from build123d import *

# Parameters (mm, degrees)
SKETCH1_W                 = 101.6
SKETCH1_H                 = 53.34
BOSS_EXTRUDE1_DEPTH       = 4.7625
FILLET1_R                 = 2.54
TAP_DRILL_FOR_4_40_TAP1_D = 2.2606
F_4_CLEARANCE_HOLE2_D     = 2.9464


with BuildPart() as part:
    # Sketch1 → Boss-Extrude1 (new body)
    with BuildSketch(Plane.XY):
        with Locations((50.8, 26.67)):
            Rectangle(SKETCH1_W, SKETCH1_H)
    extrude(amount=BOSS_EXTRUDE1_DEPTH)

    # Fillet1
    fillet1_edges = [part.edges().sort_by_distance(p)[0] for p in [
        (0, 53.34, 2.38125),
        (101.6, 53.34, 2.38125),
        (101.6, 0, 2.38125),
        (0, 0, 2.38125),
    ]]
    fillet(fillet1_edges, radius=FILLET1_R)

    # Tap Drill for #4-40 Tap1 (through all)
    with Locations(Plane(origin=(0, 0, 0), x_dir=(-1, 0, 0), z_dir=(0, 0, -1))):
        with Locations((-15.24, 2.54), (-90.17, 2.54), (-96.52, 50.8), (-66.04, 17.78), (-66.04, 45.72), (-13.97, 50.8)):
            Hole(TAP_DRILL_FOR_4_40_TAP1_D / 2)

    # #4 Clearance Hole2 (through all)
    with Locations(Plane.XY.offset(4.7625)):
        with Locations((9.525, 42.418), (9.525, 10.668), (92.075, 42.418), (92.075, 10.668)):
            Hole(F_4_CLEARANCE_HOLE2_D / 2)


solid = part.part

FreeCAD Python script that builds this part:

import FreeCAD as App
import Part
import Sketcher
from FreeCAD import Vector
Q = App.Units.Quantity


def edges_at(feature, points):
    """Names of the edges that pass closest to the given points."""
    edges = feature.Shape.Edges
    near = lambda p: min(range(len(edges)), key=lambda i: edges[i].distToShape(Part.Vertex(*p))[0])
    return sorted({f"Edge{near(p) + 1}" for p in points})

doc = App.newDocument("Part")
params = doc.addObject("Spreadsheet::Sheet", "Params")
for row, (alias, value) in enumerate([
    ("sketch1_width", "4 in"),
    ("sketch1_height", "2.1 in"),
    ("pad1_length", "0.1875 in"),
    ("fillet_radius", "0.1 in"),
    ("sketch2_diameter", "0.089 in"),
    ("hole_diameter", "0.089 in"),
    ("sketch3_diameter", "0.116 in"),
    ("hole2_diameter", "0.116 in"),
], start=1):
    params.set(f"A{row}", alias)
    params.set(f"B{row}", "=" + value)
    params.setAlias(f"B{row}", alias)

body = doc.addObject("PartDesign::Body", "Body")

# Sketch on XY plane
sketch1 = body.newObject("Sketcher::SketchObject", "Sketch")
sketch1.AttachmentSupport = (doc.getObject("XY_Plane"), [""])
sketch1.MapMode = "FlatFace"
sketch1.addGeometry([
    Part.LineSegment(Vector(0, 53, 0), Vector(0, 0, 0)),
    Part.LineSegment(Vector(0, 0, 0), Vector(102, 0, 0)),
    Part.LineSegment(Vector(102, 0, 0), Vector(102, 53, 0)),
    Part.LineSegment(Vector(102, 53, 0), Vector(0, 53, 0)),
], False)
sketch1.addConstraint([
    Sketcher.Constraint("Coincident", 0, 2, 1, 1),
    Sketcher.Constraint("Coincident", 1, 2, 2, 1),
    Sketcher.Constraint("Coincident", 2, 2, 3, 1),
    Sketcher.Constraint("Coincident", 3, 2, 0, 1),
    Sketcher.Constraint("Vertical", 0),
    Sketcher.Constraint("Horizontal", 1),
    Sketcher.Constraint("Vertical", 2),
    Sketcher.Constraint("Horizontal", 3),
    Sketcher.Constraint("Coincident", 0, 2, -1, 1),
    Sketcher.Constraint("DistanceX", 1, 1, 1, 2, Q("4 in")),
    Sketcher.Constraint("DistanceY", 0, 2, 0, 1, Q("2.1 in")),
])
sketch1.setExpression("Constraints[9]", "Params.sketch1_width")
sketch1.setExpression("Constraints[10]", "Params.sketch1_height")
pad1 = body.newObject("PartDesign::Pad", "Pad")
pad1.Profile = sketch1
pad1.setExpression("Length", "Params.pad1_length")
doc.recompute()

fillet = body.newObject("PartDesign::Fillet", "Fillet")
fillet.Base = (pad1, edges_at(pad1, [
    (0, 53.34, 2.381),
    (101.6, 53.34, 2.381),
    (101.6, 0, 2.381),
    (0, 0, 2.381),
]))
fillet.setExpression("Radius", "Params.fillet_radius")

# Sketch on XY plane
sketch2 = body.newObject("Sketcher::SketchObject", "Sketch001")
sketch2.AttachmentSupport = (doc.getObject("XY_Plane"), [""])
sketch2.MapMode = "FlatFace"
sketch2.addGeometry([
    Part.Circle(Vector(15.2, 2.5, 0), Vector(0, 0, 1), 1.1),  # 0
    Part.Circle(Vector(90.2, 2.5, 0), Vector(0, 0, 1), 1.1),  # 1
    Part.Circle(Vector(96.5, 50.8, 0), Vector(0, 0, 1), 1.1),  # 2
    Part.Circle(Vector(66, 17.8, 0), Vector(0, 0, 1), 1.1),  # 3
    Part.Circle(Vector(66, 45.7, 0), Vector(0, 0, 1), 1.1),  # 4
    Part.Circle(Vector(14, 50.8, 0), Vector(0, 0, 1), 1.1),  # 5
], False)
sketch2.addConstraint([
    Sketcher.Constraint("Equal", 0, 1),
    Sketcher.Constraint("Equal", 1, 2),
    Sketcher.Constraint("Equal", 2, 3),
    Sketcher.Constraint("Equal", 3, 4),
    Sketcher.Constraint("Equal", 4, 5),
    Sketcher.Constraint("Horizontal", 0, 3, 1, 3),
    Sketcher.Constraint("Horizontal", 2, 3, 5, 3),
    Sketcher.Constraint("Vertical", 3, 3, 4, 3),
    Sketcher.Constraint("Diameter", 0, Q("0.089 in")),
    Sketcher.Constraint("DistanceY", -1, 1, 2, 3, Q("2 in")),
    Sketcher.Constraint("DistanceX", 0, 3, 3, 3, Q("2 in")),
    Sketcher.Constraint("DistanceX", 5, 3, 1, 3, Q("3 in")),
    Sketcher.Constraint("DistanceX", -1, 1, 0, 3, Q("0.6 in")),
    Sketcher.Constraint("DistanceY", -1, 1, 0, 3, Q("0.1 in")),
    Sketcher.Constraint("DistanceX", -1, 1, 2, 3, Q("3.8 in")),
    Sketcher.Constraint("DistanceY", -1, 1, 3, 3, Q("0.7 in")),
    Sketcher.Constraint("DistanceY", -1, 1, 4, 3, Q("1.8 in")),
    Sketcher.Constraint("DistanceX", -1, 1, 1, 3, Q("3.55 in")),
])
sketch2.setExpression("Constraints[8]", "Params.sketch2_diameter")
doc.recompute()
hole = body.newObject("PartDesign::Hole", "Hole")
hole.Profile = sketch2
hole.ThreadType = "None"
hole.setExpression("Diameter", "Params.hole_diameter")
hole.DepthType = "ThroughAll"
hole.Reversed = True

# Sketch on XY plane
sketch3 = body.newObject("Sketcher::SketchObject", "Sketch002")
sketch3.AttachmentSupport = (doc.getObject("XY_Plane"), [""])
sketch3.MapMode = "FlatFace"
sketch3.AttachmentOffset = App.Placement(Vector(0, 0, 0.1875 * 25.4), App.Rotation())
sketch3.addGeometry([
    Part.Circle(Vector(9.5, 42.4, 0), Vector(0, 0, 1), 1.5),
    Part.Circle(Vector(9.5, 10.7, 0), Vector(0, 0, 1), 1.5),
    Part.Circle(Vector(92.1, 42.4, 0), Vector(0, 0, 1), 1.5),
    Part.Circle(Vector(92.1, 10.7, 0), Vector(0, 0, 1), 1.5),
], False)
sketch3.addConstraint([
    Sketcher.Constraint("Equal", 0, 1),
    Sketcher.Constraint("Equal", 1, 2),
    Sketcher.Constraint("Equal", 2, 3),
    Sketcher.Constraint("Horizontal", 0, 3, 2, 3),
    Sketcher.Constraint("Horizontal", 1, 3, 3, 3),
    Sketcher.Constraint("Vertical", 0, 3, 1, 3),
    Sketcher.Constraint("Vertical", 2, 3, 3, 3),
    Sketcher.Constraint("Diameter", 0, Q("0.116 in")),
    Sketcher.Constraint("DistanceY", -1, 1, 0, 3, Q("1.67 in")),
    Sketcher.Constraint("DistanceY", -1, 1, 1, 3, Q("0.42 in")),
    Sketcher.Constraint("DistanceX", 0, 3, 2, 3, Q("3.25 in")),
    Sketcher.Constraint("DistanceX", -1, 1, 0, 3, Q("0.375 in")),
])
sketch3.setExpression("Constraints[7]", "Params.sketch3_diameter")
doc.recompute()
hole2 = body.newObject("PartDesign::Hole", "Hole001")
hole2.Profile = sketch3
hole2.ThreadType = "None"
hole2.setExpression("Diameter", "Params.hole2_diameter")
hole2.DepthType = "ThroughAll"

doc.recompute()
